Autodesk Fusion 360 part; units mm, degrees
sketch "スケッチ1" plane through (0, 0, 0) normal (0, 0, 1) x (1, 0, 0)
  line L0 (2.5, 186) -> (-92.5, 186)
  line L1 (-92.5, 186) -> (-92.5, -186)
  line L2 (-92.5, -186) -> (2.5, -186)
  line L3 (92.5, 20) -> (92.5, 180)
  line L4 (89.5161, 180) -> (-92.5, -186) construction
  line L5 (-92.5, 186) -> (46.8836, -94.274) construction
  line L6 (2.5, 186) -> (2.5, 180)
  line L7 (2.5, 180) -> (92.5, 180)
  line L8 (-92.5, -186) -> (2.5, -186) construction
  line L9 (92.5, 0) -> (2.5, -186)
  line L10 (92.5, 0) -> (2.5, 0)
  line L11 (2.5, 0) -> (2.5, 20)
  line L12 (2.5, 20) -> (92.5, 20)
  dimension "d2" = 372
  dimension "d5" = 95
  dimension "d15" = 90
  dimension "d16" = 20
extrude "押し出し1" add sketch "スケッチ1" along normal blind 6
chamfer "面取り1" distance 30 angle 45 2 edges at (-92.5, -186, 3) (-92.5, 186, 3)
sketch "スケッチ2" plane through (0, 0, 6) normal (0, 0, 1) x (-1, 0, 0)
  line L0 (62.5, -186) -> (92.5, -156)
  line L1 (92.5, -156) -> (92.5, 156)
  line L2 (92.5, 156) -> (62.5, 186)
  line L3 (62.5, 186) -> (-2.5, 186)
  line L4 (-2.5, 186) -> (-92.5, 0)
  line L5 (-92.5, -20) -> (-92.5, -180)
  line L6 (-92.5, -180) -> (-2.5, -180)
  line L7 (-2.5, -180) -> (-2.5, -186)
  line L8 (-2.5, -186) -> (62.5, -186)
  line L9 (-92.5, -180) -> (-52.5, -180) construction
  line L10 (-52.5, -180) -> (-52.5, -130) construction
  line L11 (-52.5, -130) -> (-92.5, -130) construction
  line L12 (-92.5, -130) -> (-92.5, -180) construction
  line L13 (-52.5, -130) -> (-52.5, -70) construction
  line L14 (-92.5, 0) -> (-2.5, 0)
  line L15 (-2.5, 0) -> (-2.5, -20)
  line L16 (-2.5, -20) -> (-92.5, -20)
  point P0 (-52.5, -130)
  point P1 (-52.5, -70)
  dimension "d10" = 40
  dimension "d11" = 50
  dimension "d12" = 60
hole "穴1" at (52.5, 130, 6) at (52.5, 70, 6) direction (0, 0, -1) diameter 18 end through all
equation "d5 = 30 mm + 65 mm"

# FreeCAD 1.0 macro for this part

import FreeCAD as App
import Part
import Sketcher

V = App.Vector


def edges_at(feature, points):
    """Names of the edges that pass closest to the given points."""
    edges = feature.Shape.Edges
    near = lambda p: min(range(len(edges)), key=lambda i: edges[i].distToShape(Part.Vertex(*p))[0])
    return sorted({f"Edge{near(p) + 1}" for p in points})


def add_polygon(sketch, points):
    """Adds a closed chain of lines whose ends are joined by coincident constraints."""
    first, n = sketch.GeometryCount, len(points)
    for a, b in zip(points, points[1:] + points[:1]):
        sketch.addGeometry(Part.LineSegment(App.Vector(*a, 0), App.Vector(*b, 0)), False)
    for i in range(n):
        sketch.addConstraint(Sketcher.Constraint("Coincident", first + i, 2, first + (i + 1) % n, 1))

doc = App.newDocument("Part")
body = doc.addObject("PartDesign::Body", "Body")

# Sketch on XY plane
sketch1 = body.newObject("Sketcher::SketchObject", "Sketch")
sketch1.AttachmentSupport = (doc.getObject("XY_Plane"), [""])
sketch1.MapMode = "FlatFace"
add_polygon(sketch1, [(2, 180), (2, 186), (-92, 186), (-92, -186), (2, -186), (92, 0), (2, 0), (2, 20), (92, 20), (92, 180)])  # lines 0-9
sketch1.addConstraint([
    Sketcher.Constraint("Vertical", 0),
    Sketcher.Constraint("Horizontal", 1),
    Sketcher.Constraint("Vertical", 2),
    Sketcher.Constraint("Horizontal", 3),
    Sketcher.Constraint("Horizontal", 5),
    Sketcher.Constraint("Vertical", 6),
    Sketcher.Constraint("Horizontal", 7),
    Sketcher.Constraint("Vertical", 8),
    Sketcher.Constraint("Horizontal", 9),
    Sketcher.Constraint("Symmetric", 0, 2, 3, 2, -1),
    Sketcher.Constraint("PointOnObject", 4, 2, -1),
    Sketcher.Constraint("Vertical", 3, 2, 5, 2),
    Sketcher.Constraint("Vertical", 4, 2, 7, 2),
    Sketcher.Constraint("DistanceX", 1, 2, 1, 1, 95.0),
    Sketcher.Constraint("DistanceX", 5, 2, 5, 1, 90.0),
    Sketcher.Constraint("DistanceY", 2, 2, 2, 1, 372.0),
    Sketcher.Constraint("DistanceY", 6, 1, 6, 2, 20.0),
    Sketcher.Constraint("DistanceY", 0, 1, 0, 2, 6.0),
    Sketcher.Constraint("DistanceX", -1, 1, 0, 2, 2.5),
])
pad1 = body.newObject("PartDesign::Pad", "Pad")
pad1.Profile = sketch1
pad1.Length = 6
doc.recompute()

chamfer = body.newObject("PartDesign::Chamfer", "Chamfer")
chamfer.Base = (pad1, edges_at(pad1, [(-92.5, -186, 3), (-92.5, 186, 3)]))
chamfer.Size = 30

# Sketch on XY plane
sketch2 = body.newObject("Sketcher::SketchObject", "Sketch001")
sketch2.AttachmentSupport = (doc.getObject("XY_Plane"), [""])
sketch2.MapMode = "FlatFace"
sketch2.AttachmentOffset = App.Placement(V(0, 0, 6), App.Rotation())
sketch2.addGeometry([
    Part.Circle(V(52, 130, 0), V(0, 0, 1), 9),
    Part.Circle(V(52, 70, 0), V(0, 0, 1), 9),
], False)
sketch2.addConstraint([
    Sketcher.Constraint("Equal", 0, 1),
    Sketcher.Constraint("Vertical", 0, 3, 1, 3),
    Sketcher.Constraint("Diameter", 0, 18.0),
    Sketcher.Constraint("DistanceY", -1, 1, 0, 3, 130.0),
    Sketcher.Constraint("DistanceY", -1, 1, 1, 3, 70.0),
    Sketcher.Constraint("DistanceX", -1, 1, 0, 3, 52.5),
])
doc.recompute()
hole = body.newObject("PartDesign::Hole", "Hole")
hole.Profile = sketch2
hole.ThreadType = "None"
hole.Diameter = 18
hole.DepthType = "ThroughAll"

doc.recompute()
